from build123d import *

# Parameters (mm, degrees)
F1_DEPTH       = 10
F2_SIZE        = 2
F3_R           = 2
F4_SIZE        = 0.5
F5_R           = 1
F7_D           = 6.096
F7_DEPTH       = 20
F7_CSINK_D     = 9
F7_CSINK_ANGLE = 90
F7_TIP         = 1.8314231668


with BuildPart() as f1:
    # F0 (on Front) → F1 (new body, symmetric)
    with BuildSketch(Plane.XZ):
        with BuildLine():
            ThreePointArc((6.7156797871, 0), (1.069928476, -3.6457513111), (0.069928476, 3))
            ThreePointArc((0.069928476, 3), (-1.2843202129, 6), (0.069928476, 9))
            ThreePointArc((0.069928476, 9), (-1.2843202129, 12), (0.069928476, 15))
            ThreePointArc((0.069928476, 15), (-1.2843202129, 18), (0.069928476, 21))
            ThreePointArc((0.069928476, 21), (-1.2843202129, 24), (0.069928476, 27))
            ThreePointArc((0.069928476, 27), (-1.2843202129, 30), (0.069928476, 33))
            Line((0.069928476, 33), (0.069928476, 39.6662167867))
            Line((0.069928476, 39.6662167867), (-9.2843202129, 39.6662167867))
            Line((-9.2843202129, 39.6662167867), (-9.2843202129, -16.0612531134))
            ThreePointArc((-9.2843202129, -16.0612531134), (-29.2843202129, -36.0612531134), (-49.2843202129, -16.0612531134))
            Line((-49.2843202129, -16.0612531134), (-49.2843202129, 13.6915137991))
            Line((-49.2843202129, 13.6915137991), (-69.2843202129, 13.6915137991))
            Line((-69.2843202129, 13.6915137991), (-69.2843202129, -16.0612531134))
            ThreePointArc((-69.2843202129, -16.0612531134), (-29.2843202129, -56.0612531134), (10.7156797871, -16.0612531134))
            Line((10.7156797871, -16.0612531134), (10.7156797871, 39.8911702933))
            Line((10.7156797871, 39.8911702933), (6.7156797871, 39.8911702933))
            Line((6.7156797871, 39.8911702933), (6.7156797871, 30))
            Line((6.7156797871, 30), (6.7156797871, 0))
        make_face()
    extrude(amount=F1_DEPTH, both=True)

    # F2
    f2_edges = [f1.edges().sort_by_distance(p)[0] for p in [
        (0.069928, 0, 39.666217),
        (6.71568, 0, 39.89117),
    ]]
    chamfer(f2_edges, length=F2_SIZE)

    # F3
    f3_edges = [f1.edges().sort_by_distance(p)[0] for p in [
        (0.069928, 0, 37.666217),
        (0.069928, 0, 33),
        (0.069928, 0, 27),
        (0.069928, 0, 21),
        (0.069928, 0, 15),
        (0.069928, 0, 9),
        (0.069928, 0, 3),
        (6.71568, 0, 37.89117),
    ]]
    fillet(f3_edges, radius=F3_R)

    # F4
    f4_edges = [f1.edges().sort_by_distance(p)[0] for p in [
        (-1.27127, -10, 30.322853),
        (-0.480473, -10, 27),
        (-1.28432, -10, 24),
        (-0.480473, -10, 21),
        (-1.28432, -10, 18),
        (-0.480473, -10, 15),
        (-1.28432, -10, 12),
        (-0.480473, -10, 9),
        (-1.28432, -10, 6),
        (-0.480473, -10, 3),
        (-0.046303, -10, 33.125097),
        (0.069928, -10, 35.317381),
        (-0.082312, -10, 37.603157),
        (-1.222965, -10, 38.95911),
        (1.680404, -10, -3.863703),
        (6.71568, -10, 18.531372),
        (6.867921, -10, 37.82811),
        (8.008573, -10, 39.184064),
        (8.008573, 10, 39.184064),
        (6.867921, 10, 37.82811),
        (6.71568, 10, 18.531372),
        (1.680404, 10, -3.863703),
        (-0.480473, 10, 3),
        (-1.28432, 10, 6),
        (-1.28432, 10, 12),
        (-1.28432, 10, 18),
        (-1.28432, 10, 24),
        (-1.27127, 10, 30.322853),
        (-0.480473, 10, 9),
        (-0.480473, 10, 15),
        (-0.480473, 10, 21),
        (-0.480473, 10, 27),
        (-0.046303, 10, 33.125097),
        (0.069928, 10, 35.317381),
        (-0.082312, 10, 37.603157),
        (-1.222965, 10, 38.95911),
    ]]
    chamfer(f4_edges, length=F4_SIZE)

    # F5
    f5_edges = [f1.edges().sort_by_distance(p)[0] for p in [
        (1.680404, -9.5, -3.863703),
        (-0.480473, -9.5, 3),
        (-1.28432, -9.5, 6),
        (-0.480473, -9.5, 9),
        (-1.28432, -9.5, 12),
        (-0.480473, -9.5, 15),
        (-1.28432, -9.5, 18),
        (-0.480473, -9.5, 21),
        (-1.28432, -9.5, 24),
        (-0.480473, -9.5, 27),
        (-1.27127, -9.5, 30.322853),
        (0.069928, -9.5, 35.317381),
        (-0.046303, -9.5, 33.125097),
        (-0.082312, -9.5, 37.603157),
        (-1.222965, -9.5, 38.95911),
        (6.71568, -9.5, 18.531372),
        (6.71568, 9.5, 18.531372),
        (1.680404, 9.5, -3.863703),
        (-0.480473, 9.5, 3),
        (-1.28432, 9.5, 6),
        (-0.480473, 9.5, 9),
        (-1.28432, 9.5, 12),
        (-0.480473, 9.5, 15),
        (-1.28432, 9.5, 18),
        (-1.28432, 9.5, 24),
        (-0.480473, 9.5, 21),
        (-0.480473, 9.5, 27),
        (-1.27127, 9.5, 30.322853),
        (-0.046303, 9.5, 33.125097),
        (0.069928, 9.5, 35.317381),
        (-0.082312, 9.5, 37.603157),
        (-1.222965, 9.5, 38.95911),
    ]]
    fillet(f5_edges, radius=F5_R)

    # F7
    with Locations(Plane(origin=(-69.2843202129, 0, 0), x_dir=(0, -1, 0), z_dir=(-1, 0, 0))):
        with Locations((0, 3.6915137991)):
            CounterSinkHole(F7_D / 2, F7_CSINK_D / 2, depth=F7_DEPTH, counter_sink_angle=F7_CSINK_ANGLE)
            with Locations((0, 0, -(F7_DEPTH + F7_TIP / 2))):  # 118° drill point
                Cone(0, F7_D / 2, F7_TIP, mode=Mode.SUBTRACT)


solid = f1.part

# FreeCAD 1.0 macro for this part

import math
import FreeCAD as App
import Part
import Sketcher
Q = App.Units.Quantity


def edges_at(feature, points):
    """Names of the edges that pass closest to the given points."""
    edges = feature.Shape.Edges
    near = lambda p: min(range(len(edges)), key=lambda i: edges[i].distToShape(Part.Vertex(*p))[0])
    return sorted({f"Edge{near(p) + 1}" for p in points})

doc = App.newDocument("Part")
body = doc.addObject("PartDesign::Body", "Body")

# Sketch on XZ plane
sketch1 = body.newObject("Sketcher::SketchObject", "Sketch")
sketch1.AttachmentSupport = (doc.getObject("XZ_Plane"), [""])
sketch1.MapMode = "FlatFace"
sketch1.addGeometry([
    Part.ArcOfCircle(Part.Circle(App.Vector(2.71568, 0, 0), App.Vector(0, 0, 1), 4), math.radians(131.409622), math.radians(360)),  # 0
    Part.ArcOfCircle(Part.Circle(App.Vector(2.71568, 6, 0), App.Vector(0, 0, 1), 4), math.radians(131.409622), math.radians(228.590378)),  # 1
    Part.ArcOfCircle(Part.Circle(App.Vector(2.71568, 12, 0), App.Vector(0, 0, 1), 4), math.radians(131.409622), math.radians(228.590378)),  # 2
    Part.ArcOfCircle(Part.Circle(App.Vector(2.71568, 18, 0), App.Vector(0, 0, 1), 4), math.radians(131.409622), math.radians(228.590378)),  # 3
    Part.ArcOfCircle(Part.Circle(App.Vector(2.71568, 24, 0), App.Vector(0, 0, 1), 4), math.radians(131.409622), math.radians(228.590378)),  # 4
    Part.ArcOfCircle(Part.Circle(App.Vector(2.71568, 30, 0), App.Vector(0, 0, 1), 4), math.radians(131.409622), math.radians(228.590378)),  # 5
    Part.LineSegment(App.Vector(0.069928, 33, 0), App.Vector(0.069928, 39.666217, 0)),  # 6
    Part.LineSegment(App.Vector(0.069928, 39.666217, 0), App.Vector(-9.28432, 39.666217, 0)),  # 7
    Part.LineSegment(App.Vector(-9.28432, 39.666217, 0), App.Vector(-9.28432, -16.061253, 0)),  # 8
    Part.ArcOfCircle(Part.Circle(App.Vector(-29.28432, -16.061253, 0), App.Vector(0, 0, 1), 20), math.radians(180), math.radians(360)),  # 9
    Part.LineSegment(App.Vector(-49.28432, -16.061253, 0), App.Vector(-49.28432, 13.691514, 0)),  # 10
    Part.LineSegment(App.Vector(-49.28432, 13.691514, 0), App.Vector(-69.28432, 13.691514, 0)),  # 11
    Part.LineSegment(App.Vector(-69.28432, 13.691514, 0), App.Vector(-69.28432, -16.061253, 0)),  # 12
    Part.ArcOfCircle(Part.Circle(App.Vector(-29.28432, -16.061253, 0), App.Vector(0, 0, 1), 40), math.radians(180), math.radians(360)),  # 13
    Part.LineSegment(App.Vector(10.71568, -16.061253, 0), App.Vector(10.71568, 39.89117, 0)),  # 14
    Part.LineSegment(App.Vector(10.71568, 39.89117, 0), App.Vector(6.71568, 39.89117, 0)),  # 15
    Part.LineSegment(App.Vector(6.71568, 39.89117, 0), App.Vector(6.71568, 0, 0)),  # 16
], False)
sketch1.addConstraint([
    Sketcher.Constraint("Coincident", 0, 1, 1, 2),
    Sketcher.Constraint("Coincident", 1, 1, 2, 2),
    Sketcher.Constraint("Coincident", 2, 1, 3, 2),
    Sketcher.Constraint("Coincident", 3, 1, 4, 2),
    Sketcher.Constraint("Coincident", 4, 1, 5, 2),
    Sketcher.Constraint("Coincident", 5, 1, 6, 1),
    Sketcher.Constraint("Coincident", 6, 2, 7, 1),
    Sketcher.Constraint("Coincident", 7, 2, 8, 1),
    Sketcher.Constraint("Tangent", 8, 2, 9, 2),
    Sketcher.Constraint("Tangent", 9, 1, 10, 1),
    Sketcher.Constraint("Coincident", 10, 2, 11, 1),
    Sketcher.Constraint("Coincident", 11, 2, 12, 1),
    Sketcher.Constraint("Tangent", 12, 2, 13, 1),
    Sketcher.Constraint("Tangent", 13, 2, 14, 1),
    Sketcher.Constraint("Coincident", 14, 2, 15, 1),
    Sketcher.Constraint("Coincident", 15, 2, 16, 1),
    Sketcher.Constraint("Tangent", 16, 2, 0, 2),
    Sketcher.Constraint("Vertical", 6),
    Sketcher.Constraint("Horizontal", 7),
    Sketcher.Constraint("Vertical", 8),
    Sketcher.Constraint("Vertical", 10),
    Sketcher.Constraint("Horizontal", 11),
    Sketcher.Constraint("Vertical", 12),
    Sketcher.Constraint("Vertical", 14),
    Sketcher.Constraint("Horizontal", 15),
    Sketcher.Constraint("Vertical", 16),
    Sketcher.Constraint("Coincident", 13, 3, 9, 3),
    Sketcher.Constraint("Equal", 0, 1),
    Sketcher.Constraint("Equal", 1, 2),
    Sketcher.Constraint("Equal", 2, 3),
    Sketcher.Constraint("Equal", 3, 4),
    Sketcher.Constraint("Equal", 4, 5),
    Sketcher.Constraint("PointOnObject", 0, 3, -1),
    Sketcher.Constraint("Vertical", 0, 3, 1, 3),
    Sketcher.Constraint("Vertical", 1, 3, 2, 3),
    Sketcher.Constraint("Vertical", 2, 3, 3, 3),
    Sketcher.Constraint("Vertical", 3, 3, 4, 3),
    Sketcher.Constraint("Vertical", 4, 3, 5, 3),
    Sketcher.Constraint("Vertical", 0, 1, 1, 1),
    Sketcher.Constraint("Vertical", 1, 1, 2, 1),
    Sketcher.Constraint("Vertical", 2, 1, 3, 1),
    Sketcher.Constraint("Vertical", 3, 1, 4, 1),
    Sketcher.Constraint("Vertical", 4, 1, 5, 1),
    Sketcher.Constraint("Radius", 0, Q("4 mm")),
    Sketcher.Constraint("Radius", 9, Q("20 mm")),
    Sketcher.Constraint("Radius", 13, Q("40 mm")),
    Sketcher.Constraint("DistanceX", 15, 2, 15, 1, Q("4 mm")),
    Sketcher.Constraint("DistanceY", -1, 1, 1, 3, Q("6 mm")),
    Sketcher.Constraint("DistanceY", 8, 2, 8, 1, Q("55.72747 mm")),
    Sketcher.Constraint("DistanceY", 16, 2, 16, 1, Q("39.89117 mm")),
    Sketcher.Constraint("DistanceY", 6, 1, 6, 2, Q("6.666217 mm")),
    Sketcher.Constraint("DistanceY", 10, 1, 10, 2, Q("29.752767 mm")),
    Sketcher.Constraint("DistanceX", -1, 1, 0, 3, Q("2.71568 mm")),
])
pad1 = body.newObject("PartDesign::Pad", "Pad")
pad1.Profile = sketch1
pad1.Length = 20
pad1.Midplane = True
doc.recompute()

chamfer = body.newObject("PartDesign::Chamfer", "Chamfer")
chamfer.Base = (pad1, edges_at(pad1, [(0.07, 0, 39.666), (6.716, 0, 39.891)]))
chamfer.Size = 2
doc.recompute()

fillet = body.newObject("PartDesign::Fillet", "Fillet")
fillet.Base = (chamfer, edges_at(chamfer, [
    (0.07, 0, 37.666),
    (0.07, 0, 33),
    (0.07, 0, 27),
    (0.07, 0, 21),
    (0.07, 0, 15),
    (0.07, 0, 9),
    (0.07, 0, 3),
    (6.716, 0, 37.891),
]))
fillet.Radius = 2
doc.recompute()

chamfer2 = body.newObject("PartDesign::Chamfer", "Chamfer001")
chamfer2.Base = (fillet, edges_at(fillet, [
    (-1.271, -10, 30.323),
    (-0.48, -10, 27),
    (-1.284, -10, 24),
    (-0.48, -10, 21),
    (-1.284, -10, 18),
    (-0.48, -10, 15),
    (-1.284, -10, 12),
    (-0.48, -10, 9),
    (-1.284, -10, 6),
    (-0.48, -10, 3),
    (-0.046, -10, 33.125),
    (0.07, -10, 35.317),
    (-0.082, -10, 37.603),
    (-1.223, -10, 38.959),
    (1.68, -10, -3.864),
    (6.716, -10, 18.531),
    (6.868, -10, 37.828),
    (8.009, -10, 39.184),
    (8.009, 10, 39.184),
    (6.868, 10, 37.828),
    (6.716, 10, 18.531),
    (1.68, 10, -3.864),
    (-0.48, 10, 3),
    (-1.284, 10, 6),
    (-1.284, 10, 12),
    (-1.284, 10, 18),
    (-1.284, 10, 24),
    (-1.271, 10, 30.323),
    (-0.48, 10, 9),
    (-0.48, 10, 15),
    (-0.48, 10, 21),
    (-0.48, 10, 27),
    (-0.046, 10, 33.125),
    (0.07, 10, 35.317),
    (-0.082, 10, 37.603),
    (-1.223, 10, 38.959),
]))
chamfer2.Size = 0.5
doc.recompute()

fillet2 = body.newObject("PartDesign::Fillet", "Fillet001")
fillet2.Base = (chamfer2, edges_at(chamfer2, [
    (1.68, -9.5, -3.864),
    (-0.48, -9.5, 3),
    (-1.284, -9.5, 6),
    (-0.48, -9.5, 9),
    (-1.284, -9.5, 12),
    (-0.48, -9.5, 15),
    (-1.284, -9.5, 18),
    (-0.48, -9.5, 21),
    (-1.284, -9.5, 24),
    (-0.48, -9.5, 27),
    (-1.271, -9.5, 30.323),
    (0.07, -9.5, 35.317),
    (-0.046, -9.5, 33.125),
    (-0.082, -9.5, 37.603),
    (-1.223, -9.5, 38.959),
    (6.716, -9.5, 18.531),
    (6.716, 9.5, 18.531),
    (1.68, 9.5, -3.864),
    (-0.48, 9.5, 3),
    (-1.284, 9.5, 6),
    (-0.48, 9.5, 9),
    (-1.284, 9.5, 12),
    (-0.48, 9.5, 15),
    (-1.284, 9.5, 18),
    (-1.284, 9.5, 24),
    (-0.48, 9.5, 21),
    (-0.48, 9.5, 27),
    (-1.271, 9.5, 30.323),
    (-0.046, 9.5, 33.125),
    (0.07, 9.5, 35.317),
    (-0.082, 9.5, 37.603),
    (-1.223, 9.5, 38.959),
]))
fillet2.Radius = 1

# Sketch on YZ plane
sketch2 = body.newObject("Sketcher::SketchObject", "Sketch001")
sketch2.AttachmentSupport = (doc.getObject("YZ_Plane"), [""])
sketch2.MapMode = "FlatFace"
sketch2.AttachmentOffset = App.Placement(App.Vector(0, 0, -69.28432), App.Rotation())
sketch2.addGeometry(Part.Circle(App.Vector(0, 3.691514, 0), App.Vector(0, 0, 1), 3.048), False)
sketch2.addConstraint([
    Sketcher.Constraint("PointOnObject", 0, 3, -2),
    Sketcher.Constraint("Diameter", 0, Q("6.096 mm")),
    Sketcher.Constraint("DistanceY", -1, 1, 0, 3, Q("3.691514 mm")),
])
doc.recompute()
hole = body.newObject("PartDesign::Hole", "Hole")
hole.Profile = sketch2
hole.ThreadType = "None"
hole.Diameter = 6.096
hole.DepthType = "Dimension"
hole.Depth = 20
hole.DrillPoint = "Angled"
hole.DrillPointAngle = 118
hole.HoleCutType = "Countersink"
hole.HoleCutDiameter = 9
hole.HoleCutCountersinkAngle = 90
hole.Reversed = True

doc.recompute()
